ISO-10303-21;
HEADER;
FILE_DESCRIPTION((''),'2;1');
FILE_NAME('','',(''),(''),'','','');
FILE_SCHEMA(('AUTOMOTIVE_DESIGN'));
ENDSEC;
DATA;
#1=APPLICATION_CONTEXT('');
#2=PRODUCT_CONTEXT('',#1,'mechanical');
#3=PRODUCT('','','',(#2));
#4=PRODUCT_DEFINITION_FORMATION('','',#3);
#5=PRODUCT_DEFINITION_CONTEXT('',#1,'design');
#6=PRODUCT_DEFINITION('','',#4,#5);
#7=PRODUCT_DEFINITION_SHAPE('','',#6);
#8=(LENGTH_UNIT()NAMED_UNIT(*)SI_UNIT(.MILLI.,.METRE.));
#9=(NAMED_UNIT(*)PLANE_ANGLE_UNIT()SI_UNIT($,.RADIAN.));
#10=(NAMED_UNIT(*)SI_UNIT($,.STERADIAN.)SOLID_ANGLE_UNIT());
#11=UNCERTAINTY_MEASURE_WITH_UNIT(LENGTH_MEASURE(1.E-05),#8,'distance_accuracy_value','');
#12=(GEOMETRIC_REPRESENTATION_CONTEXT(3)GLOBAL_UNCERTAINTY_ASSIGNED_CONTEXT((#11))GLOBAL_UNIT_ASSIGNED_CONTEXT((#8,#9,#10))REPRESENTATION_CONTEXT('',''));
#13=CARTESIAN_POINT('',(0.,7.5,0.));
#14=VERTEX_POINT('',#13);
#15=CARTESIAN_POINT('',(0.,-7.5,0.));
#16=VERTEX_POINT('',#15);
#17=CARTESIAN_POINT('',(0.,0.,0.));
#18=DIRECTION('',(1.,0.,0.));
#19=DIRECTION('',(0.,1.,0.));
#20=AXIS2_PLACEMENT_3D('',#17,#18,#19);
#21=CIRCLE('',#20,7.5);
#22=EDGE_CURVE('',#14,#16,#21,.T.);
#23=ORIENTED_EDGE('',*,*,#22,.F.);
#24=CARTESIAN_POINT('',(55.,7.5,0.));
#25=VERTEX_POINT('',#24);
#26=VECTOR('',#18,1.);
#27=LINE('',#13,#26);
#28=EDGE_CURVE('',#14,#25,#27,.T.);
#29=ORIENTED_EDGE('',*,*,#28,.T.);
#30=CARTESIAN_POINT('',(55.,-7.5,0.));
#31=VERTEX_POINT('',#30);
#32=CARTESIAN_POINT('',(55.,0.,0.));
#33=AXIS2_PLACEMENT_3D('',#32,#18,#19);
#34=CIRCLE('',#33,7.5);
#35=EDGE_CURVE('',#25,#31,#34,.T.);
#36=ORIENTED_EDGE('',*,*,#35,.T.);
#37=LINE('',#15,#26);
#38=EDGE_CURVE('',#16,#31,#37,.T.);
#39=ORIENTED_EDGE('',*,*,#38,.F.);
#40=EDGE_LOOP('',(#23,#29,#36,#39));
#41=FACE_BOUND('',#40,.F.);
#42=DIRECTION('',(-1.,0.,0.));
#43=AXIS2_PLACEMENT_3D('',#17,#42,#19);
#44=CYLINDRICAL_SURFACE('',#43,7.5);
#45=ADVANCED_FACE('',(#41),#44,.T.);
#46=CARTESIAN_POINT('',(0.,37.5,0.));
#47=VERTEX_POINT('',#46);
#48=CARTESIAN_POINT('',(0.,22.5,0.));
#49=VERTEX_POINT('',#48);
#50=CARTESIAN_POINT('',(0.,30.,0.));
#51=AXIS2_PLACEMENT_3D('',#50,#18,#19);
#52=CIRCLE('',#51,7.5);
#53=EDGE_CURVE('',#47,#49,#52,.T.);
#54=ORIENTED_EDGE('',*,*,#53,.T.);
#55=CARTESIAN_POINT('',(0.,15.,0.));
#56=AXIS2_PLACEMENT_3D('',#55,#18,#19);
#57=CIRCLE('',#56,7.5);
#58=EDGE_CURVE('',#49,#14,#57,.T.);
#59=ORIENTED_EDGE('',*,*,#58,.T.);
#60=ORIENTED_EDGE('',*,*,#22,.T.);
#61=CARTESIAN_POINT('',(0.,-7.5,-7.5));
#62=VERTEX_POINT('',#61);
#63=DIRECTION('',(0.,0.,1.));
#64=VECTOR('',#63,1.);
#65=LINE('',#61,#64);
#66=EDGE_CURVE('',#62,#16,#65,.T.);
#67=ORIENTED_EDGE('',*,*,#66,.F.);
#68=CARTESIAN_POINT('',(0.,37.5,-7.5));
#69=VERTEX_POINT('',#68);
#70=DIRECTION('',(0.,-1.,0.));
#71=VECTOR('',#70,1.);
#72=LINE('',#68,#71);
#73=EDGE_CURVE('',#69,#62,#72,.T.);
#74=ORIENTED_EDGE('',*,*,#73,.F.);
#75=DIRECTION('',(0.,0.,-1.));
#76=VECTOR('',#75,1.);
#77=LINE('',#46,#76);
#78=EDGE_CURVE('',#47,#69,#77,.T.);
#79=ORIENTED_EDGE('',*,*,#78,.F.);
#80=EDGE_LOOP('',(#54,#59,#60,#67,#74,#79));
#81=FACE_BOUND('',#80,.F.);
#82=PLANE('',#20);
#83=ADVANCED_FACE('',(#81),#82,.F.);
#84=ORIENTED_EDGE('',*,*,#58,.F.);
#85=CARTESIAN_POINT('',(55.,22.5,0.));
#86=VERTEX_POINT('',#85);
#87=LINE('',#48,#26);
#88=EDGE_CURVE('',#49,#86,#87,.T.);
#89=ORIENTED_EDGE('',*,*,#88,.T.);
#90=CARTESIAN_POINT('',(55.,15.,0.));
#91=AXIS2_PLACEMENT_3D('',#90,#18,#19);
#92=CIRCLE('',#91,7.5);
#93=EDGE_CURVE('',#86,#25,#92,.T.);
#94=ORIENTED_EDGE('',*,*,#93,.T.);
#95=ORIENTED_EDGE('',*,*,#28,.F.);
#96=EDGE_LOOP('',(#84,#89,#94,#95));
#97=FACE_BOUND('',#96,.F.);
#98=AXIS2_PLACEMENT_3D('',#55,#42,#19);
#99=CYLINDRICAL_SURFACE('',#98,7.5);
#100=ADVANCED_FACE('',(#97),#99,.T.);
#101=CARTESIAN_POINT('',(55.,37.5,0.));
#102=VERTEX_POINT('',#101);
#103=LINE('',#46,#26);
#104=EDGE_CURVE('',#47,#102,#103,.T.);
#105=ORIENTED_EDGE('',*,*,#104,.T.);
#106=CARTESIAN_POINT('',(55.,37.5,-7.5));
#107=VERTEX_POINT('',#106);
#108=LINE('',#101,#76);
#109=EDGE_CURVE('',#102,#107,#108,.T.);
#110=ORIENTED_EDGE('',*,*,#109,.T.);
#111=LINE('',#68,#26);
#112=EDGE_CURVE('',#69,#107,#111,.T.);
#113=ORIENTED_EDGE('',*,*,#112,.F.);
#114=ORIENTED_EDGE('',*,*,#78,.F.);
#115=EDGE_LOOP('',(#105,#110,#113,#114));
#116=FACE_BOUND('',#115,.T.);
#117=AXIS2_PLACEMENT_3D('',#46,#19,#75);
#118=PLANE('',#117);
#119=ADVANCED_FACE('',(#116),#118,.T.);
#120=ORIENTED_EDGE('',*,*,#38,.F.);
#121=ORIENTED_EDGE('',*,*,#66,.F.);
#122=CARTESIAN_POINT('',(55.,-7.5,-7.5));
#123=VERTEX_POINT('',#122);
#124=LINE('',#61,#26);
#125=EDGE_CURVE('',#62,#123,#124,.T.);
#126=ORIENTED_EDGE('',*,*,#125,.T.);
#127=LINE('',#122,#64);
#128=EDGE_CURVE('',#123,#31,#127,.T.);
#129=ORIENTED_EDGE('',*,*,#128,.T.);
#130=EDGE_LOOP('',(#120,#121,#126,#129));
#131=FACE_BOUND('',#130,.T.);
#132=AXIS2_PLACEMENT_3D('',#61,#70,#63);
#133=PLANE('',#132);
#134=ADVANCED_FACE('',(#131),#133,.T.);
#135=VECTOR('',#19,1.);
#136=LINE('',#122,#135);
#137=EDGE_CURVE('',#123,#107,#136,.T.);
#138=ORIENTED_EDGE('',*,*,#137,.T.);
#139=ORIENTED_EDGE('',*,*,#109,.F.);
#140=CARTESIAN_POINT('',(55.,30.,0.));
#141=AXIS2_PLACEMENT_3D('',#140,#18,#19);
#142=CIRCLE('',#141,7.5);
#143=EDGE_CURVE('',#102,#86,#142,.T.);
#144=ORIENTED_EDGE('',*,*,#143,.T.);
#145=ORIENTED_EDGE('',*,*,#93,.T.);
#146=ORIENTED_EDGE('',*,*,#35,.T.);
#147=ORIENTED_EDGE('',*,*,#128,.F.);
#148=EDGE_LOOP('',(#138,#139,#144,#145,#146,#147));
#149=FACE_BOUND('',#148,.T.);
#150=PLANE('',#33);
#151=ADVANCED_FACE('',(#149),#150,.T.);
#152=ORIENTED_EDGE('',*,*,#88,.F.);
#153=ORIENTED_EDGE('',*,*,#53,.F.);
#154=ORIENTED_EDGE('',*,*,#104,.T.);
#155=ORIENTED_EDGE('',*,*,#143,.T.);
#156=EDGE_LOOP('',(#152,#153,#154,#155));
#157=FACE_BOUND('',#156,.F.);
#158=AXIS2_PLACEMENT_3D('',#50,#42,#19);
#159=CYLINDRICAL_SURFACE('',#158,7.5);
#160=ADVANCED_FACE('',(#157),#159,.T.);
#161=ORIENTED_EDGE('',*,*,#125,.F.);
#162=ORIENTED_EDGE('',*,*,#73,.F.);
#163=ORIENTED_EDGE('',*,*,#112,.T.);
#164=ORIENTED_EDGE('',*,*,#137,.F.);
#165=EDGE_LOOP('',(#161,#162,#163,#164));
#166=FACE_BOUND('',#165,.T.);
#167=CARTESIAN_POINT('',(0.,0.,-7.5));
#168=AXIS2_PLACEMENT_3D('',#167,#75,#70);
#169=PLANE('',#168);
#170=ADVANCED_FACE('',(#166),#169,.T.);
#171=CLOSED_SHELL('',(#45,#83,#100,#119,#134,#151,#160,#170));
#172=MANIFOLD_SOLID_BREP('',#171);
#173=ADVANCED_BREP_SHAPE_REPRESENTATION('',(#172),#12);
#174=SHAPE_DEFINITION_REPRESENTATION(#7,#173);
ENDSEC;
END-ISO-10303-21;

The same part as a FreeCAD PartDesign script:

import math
import FreeCAD as App
import Part
import Sketcher

V = App.Vector

doc = App.newDocument("Part")
params = doc.addObject("Spreadsheet::Sheet", "Params")
for row, (alias, value) in enumerate([
    ("sketch1_radius", "7.5 mm"),
    ("sketch1_height", "7.5 mm"),
    ("pad1_length", "55 mm"),
], start=1):
    params.set(f"A{row}", alias)
    params.set(f"B{row}", "=" + value)
    params.setAlias(f"B{row}", alias)

body = doc.addObject("PartDesign::Body", "Body")

# Sketch on YZ plane
sketch1 = body.newObject("Sketcher::SketchObject", "Sketch")
sketch1.AttachmentSupport = (doc.getObject("YZ_Plane"), [""])
sketch1.MapMode = "FlatFace"
sketch1.addGeometry(Part.ArcOfCircle(Part.Circle(V(0, 0, 0), V(0, 0, 1), 7.5), math.radians(0), math.radians(180)), False)
sketch1.addGeometry(Part.LineSegment(V(-7.5, 0, 0), V(-7.5, -7.5, 0)), False)
sketch1.addGeometry(Part.LineSegment(V(-7.5, -7.5, 0), V(37.5, -7.5, 0)), False)
sketch1.addGeometry(Part.LineSegment(V(37.5, -7.5, 0), V(37.5, 0, 0)), False)
sketch1.addGeometry(Part.ArcOfCircle(Part.Circle(V(30, 0, 0), V(0, 0, 1), 7.5), math.radians(0), math.radians(180)), False)
sketch1.addGeometry(Part.ArcOfCircle(Part.Circle(V(15, 0, 0), V(0, 0, 1), 7.5), math.radians(0), math.radians(180)), False)
sketch1.addConstraint(Sketcher.Constraint("Tangent", 0, 2, 1, 1))
sketch1.addConstraint(Sketcher.Constraint("Coincident", 1, 2, 2, 1))
sketch1.addConstraint(Sketcher.Constraint("Coincident", 2, 2, 3, 1))
sketch1.addConstraint(Sketcher.Constraint("Tangent", 3, 2, 4, 1))
sketch1.addConstraint(Sketcher.Constraint("Tangent", 4, 2, 5, 1))
sketch1.addConstraint(Sketcher.Constraint("Tangent", 5, 2, 0, 1))
sketch1.addConstraint(Sketcher.Constraint("Vertical", 1))
sketch1.addConstraint(Sketcher.Constraint("Horizontal", 2))
sketch1.addConstraint(Sketcher.Constraint("Vertical", 3))
sketch1.addConstraint(Sketcher.Constraint("Coincident", 0, 3, -1, 1))
sketch1.addConstraint(Sketcher.Constraint("Equal", 0, 4))
sketch1.addConstraint(Sketcher.Constraint("Equal", 4, 5))
sketch1.addConstraint(Sketcher.Constraint("PointOnObject", 4, 3, -1))
sketch1.addConstraint(Sketcher.Constraint("PointOnObject", 5, 3, -1))
sketch1.addConstraint(Sketcher.Constraint("Radius", 0, 7.5))
sketch1.addConstraint(Sketcher.Constraint("DistanceY", 1, 2, 1, 1, 7.5))
sketch1.setExpression("Constraints[14]", "Params.sketch1_radius")
sketch1.setExpression("Constraints[15]", "Params.sketch1_height")
pad1 = body.newObject("PartDesign::Pad", "Pad")
pad1.Profile = sketch1
pad1.setExpression("Length", "Params.pad1_length")

doc.recompute()
